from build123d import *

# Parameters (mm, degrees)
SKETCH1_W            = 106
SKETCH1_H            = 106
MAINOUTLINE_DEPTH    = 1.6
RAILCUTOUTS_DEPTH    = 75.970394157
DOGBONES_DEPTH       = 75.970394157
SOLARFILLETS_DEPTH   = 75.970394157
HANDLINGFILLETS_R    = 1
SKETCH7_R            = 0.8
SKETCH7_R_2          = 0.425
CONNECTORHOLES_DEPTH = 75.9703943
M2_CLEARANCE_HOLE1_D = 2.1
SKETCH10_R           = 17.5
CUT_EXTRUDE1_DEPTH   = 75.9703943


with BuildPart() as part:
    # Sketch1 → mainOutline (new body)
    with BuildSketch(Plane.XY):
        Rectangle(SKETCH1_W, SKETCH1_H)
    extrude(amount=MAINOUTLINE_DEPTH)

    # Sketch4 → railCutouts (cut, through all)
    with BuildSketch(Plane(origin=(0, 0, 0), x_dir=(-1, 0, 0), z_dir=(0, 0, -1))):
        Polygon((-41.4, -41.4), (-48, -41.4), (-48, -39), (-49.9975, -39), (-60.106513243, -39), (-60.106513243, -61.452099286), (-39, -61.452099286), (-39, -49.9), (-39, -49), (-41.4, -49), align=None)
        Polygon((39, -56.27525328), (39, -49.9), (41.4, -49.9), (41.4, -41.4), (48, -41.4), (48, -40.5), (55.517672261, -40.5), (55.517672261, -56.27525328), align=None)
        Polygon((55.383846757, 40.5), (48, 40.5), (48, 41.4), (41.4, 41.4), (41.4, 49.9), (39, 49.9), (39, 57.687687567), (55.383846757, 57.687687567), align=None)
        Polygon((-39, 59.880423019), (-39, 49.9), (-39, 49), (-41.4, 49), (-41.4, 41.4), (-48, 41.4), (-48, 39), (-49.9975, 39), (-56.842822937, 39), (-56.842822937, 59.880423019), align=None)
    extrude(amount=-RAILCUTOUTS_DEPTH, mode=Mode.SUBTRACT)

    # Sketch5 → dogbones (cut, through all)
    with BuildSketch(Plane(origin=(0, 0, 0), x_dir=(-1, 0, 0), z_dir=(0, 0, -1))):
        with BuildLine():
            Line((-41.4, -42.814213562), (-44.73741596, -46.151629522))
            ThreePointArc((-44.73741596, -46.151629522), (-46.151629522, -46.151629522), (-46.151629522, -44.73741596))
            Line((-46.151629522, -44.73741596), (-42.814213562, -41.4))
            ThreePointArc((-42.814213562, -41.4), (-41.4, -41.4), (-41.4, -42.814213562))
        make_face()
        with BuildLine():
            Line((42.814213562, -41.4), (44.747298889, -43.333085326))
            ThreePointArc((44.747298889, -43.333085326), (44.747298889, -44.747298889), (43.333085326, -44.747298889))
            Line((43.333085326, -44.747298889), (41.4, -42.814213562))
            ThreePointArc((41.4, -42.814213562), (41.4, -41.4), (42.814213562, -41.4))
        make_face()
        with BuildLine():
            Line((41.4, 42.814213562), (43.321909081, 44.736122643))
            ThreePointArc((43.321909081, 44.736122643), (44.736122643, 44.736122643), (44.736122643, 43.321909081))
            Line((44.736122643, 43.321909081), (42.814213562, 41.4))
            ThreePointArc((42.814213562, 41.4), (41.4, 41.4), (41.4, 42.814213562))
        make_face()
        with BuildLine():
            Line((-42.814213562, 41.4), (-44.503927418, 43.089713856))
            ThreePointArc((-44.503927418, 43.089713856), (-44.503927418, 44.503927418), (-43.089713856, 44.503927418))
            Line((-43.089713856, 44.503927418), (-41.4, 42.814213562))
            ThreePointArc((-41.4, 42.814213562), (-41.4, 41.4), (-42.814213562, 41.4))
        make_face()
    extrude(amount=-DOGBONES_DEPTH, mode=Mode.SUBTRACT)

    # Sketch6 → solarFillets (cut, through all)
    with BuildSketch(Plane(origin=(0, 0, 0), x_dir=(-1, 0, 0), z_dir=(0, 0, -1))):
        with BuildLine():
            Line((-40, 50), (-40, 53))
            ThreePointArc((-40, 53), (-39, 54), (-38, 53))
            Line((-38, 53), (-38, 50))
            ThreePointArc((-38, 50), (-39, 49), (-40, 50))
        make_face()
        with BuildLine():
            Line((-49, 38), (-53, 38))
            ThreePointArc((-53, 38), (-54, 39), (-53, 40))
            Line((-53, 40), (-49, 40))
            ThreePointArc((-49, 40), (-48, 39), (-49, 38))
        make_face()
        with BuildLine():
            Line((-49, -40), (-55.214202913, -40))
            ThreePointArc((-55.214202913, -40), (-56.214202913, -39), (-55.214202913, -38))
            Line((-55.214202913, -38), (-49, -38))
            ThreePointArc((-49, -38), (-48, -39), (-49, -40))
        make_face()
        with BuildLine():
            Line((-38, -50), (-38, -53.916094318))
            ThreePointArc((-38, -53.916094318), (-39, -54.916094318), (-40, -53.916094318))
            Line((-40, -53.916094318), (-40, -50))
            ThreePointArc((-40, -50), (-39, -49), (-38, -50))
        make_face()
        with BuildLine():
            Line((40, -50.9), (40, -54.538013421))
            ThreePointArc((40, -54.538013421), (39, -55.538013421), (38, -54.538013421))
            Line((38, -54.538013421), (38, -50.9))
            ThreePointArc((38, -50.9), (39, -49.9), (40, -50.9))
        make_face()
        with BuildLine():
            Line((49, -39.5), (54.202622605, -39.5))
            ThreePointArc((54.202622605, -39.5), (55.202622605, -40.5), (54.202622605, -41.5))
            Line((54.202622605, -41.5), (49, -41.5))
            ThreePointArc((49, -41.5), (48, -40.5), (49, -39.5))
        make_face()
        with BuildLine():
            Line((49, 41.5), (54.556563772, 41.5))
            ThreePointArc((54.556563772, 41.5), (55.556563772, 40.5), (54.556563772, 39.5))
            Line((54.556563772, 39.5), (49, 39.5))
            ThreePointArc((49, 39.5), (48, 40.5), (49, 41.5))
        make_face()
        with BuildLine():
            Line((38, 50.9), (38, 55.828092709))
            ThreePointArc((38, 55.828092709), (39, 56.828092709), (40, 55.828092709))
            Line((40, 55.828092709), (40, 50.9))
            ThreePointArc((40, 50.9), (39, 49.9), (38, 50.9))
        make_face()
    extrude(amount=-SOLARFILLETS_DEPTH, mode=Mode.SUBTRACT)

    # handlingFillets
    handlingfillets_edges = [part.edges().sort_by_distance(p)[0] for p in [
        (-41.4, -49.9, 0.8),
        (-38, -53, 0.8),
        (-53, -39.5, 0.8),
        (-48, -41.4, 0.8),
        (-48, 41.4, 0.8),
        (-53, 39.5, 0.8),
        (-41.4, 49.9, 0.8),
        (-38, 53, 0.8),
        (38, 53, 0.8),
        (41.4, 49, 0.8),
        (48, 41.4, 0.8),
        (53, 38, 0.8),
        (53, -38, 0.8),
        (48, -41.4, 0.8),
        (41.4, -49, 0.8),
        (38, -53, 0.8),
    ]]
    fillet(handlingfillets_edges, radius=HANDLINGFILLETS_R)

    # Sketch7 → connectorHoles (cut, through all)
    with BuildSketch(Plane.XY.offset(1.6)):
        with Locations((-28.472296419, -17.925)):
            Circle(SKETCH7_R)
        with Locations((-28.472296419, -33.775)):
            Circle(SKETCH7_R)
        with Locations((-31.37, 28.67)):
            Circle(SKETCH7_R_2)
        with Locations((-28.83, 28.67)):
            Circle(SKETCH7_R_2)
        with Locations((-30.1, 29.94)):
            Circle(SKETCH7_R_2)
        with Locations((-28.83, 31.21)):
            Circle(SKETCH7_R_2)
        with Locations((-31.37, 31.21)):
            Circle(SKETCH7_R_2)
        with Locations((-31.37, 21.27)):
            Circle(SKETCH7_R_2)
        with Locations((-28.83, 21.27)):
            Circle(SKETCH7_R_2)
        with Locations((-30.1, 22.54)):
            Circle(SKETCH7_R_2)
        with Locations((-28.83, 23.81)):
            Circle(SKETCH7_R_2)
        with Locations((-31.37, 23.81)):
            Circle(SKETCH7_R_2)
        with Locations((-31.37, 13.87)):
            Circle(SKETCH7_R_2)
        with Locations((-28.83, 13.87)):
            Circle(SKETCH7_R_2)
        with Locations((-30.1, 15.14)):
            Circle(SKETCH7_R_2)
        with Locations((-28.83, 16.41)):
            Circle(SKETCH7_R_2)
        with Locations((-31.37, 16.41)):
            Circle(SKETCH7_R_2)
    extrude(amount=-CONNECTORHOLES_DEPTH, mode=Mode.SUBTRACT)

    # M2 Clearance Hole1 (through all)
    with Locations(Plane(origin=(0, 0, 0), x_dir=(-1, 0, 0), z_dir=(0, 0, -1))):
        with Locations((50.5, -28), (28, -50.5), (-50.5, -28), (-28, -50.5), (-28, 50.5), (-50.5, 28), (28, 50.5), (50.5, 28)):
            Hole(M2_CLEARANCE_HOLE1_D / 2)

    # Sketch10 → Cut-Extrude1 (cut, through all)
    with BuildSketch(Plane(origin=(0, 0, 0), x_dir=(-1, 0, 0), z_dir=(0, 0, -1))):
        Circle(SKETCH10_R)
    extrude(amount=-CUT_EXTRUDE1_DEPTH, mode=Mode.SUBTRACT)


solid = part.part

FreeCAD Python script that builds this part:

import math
import FreeCAD as App
import Part
import Sketcher

V = App.Vector


def edges_at(feature, points):
    """Names of the edges that pass closest to the given points."""
    edges = feature.Shape.Edges
    near = lambda p: min(range(len(edges)), key=lambda i: edges[i].distToShape(Part.Vertex(*p))[0])
    return sorted({f"Edge{near(p) + 1}" for p in points})


def add_polygon(sketch, points):
    """Adds a closed chain of lines whose ends are joined by coincident constraints."""
    first, n = sketch.GeometryCount, len(points)
    for a, b in zip(points, points[1:] + points[:1]):
        sketch.addGeometry(Part.LineSegment(App.Vector(*a, 0), App.Vector(*b, 0)), False)
    for i in range(n):
        sketch.addConstraint(Sketcher.Constraint("Coincident", first + i, 2, first + (i + 1) % n, 1))

doc = App.newDocument("Part")
body = doc.addObject("PartDesign::Body", "Body")

# Sketch on XY plane
sketch1 = body.newObject("Sketcher::SketchObject", "Sketch")
sketch1.AttachmentSupport = (doc.getObject("XY_Plane"), [""])
sketch1.MapMode = "FlatFace"
add_polygon(sketch1, [(-53, 53), (-53, -53), (53, -53), (53, 53)])  # lines 0-3
sketch1.addConstraint([
    Sketcher.Constraint("Vertical", 0),
    Sketcher.Constraint("Horizontal", 1),
    Sketcher.Constraint("Vertical", 2),
    Sketcher.Constraint("Horizontal", 3),
    Sketcher.Constraint("Symmetric", 0, 2, 2, 2, -1, 1),
    Sketcher.Constraint("Equal", 3, 0),
    Sketcher.Constraint("DistanceX", 1, 1, 1, 2, 106.0),
])
pad1 = body.newObject("PartDesign::Pad", "Pad")
pad1.Profile = sketch1
pad1.Length = 1.6

# Sketch on XY plane
sketch2 = body.newObject("Sketcher::SketchObject", "Sketch001")
sketch2.AttachmentSupport = (doc.getObject("XY_Plane"), [""])
sketch2.MapMode = "FlatFace"
add_polygon(sketch2, [(41.4, -41.4), (48, -41.4), (48, -39), (60.106513, -39), (60.106513, -61.452099), (39, -61.452099), (39, -49), (41.4, -49)])  # lines 0-7
add_polygon(sketch2, [(-39, -49.9), (-39, -56.275253), (-55.517672, -56.275253), (-55.517672, -40.5), (-48, -40.5), (-48, -41.4), (-41.4, -41.4), (-41.4, -49.9)])  # lines 8-15
add_polygon(sketch2, [(-48, 40.5), (-55.383847, 40.5), (-55.383847, 57.687688), (-39, 57.687688), (-39, 49.9), (-41.4, 49.9), (-41.4, 41.4), (-48, 41.4)])  # lines 16-23
add_polygon(sketch2, [(39, 49), (39, 59.880423), (56.842823, 59.880423), (56.842823, 39), (48, 39), (48, 41.4), (41.4, 41.4), (41.4, 49)])  # lines 24-31
sketch2.addConstraint([
    Sketcher.Constraint("Horizontal", 0),
    Sketcher.Constraint("Vertical", 1),
    Sketcher.Constraint("Horizontal", 2),
    Sketcher.Constraint("Vertical", 3),
    Sketcher.Constraint("Horizontal", 4),
    Sketcher.Constraint("Vertical", 5),
    Sketcher.Constraint("Horizontal", 6),
    Sketcher.Constraint("Vertical", 7),
    Sketcher.Constraint("Vertical", 8),
    Sketcher.Constraint("Horizontal", 9),
    Sketcher.Constraint("Vertical", 10),
    Sketcher.Constraint("Horizontal", 11),
    Sketcher.Constraint("Vertical", 12),
    Sketcher.Constraint("Horizontal", 13),
    Sketcher.Constraint("Vertical", 14),
    Sketcher.Constraint("Horizontal", 15),
    Sketcher.Constraint("Horizontal", 16),
    Sketcher.Constraint("Vertical", 17),
    Sketcher.Constraint("Horizontal", 18),
    Sketcher.Constraint("Vertical", 19),
    Sketcher.Constraint("Horizontal", 20),
    Sketcher.Constraint("Vertical", 21),
    Sketcher.Constraint("Horizontal", 22),
    Sketcher.Constraint("Vertical", 23),
    Sketcher.Constraint("Vertical", 24),
    Sketcher.Constraint("Horizontal", 25),
    Sketcher.Constraint("Vertical", 26),
    Sketcher.Constraint("Horizontal", 27),
    Sketcher.Constraint("Vertical", 28),
    Sketcher.Constraint("Horizontal", 29),
    Sketcher.Constraint("Vertical", 30),
    Sketcher.Constraint("Horizontal", 31),
    Sketcher.Constraint("Symmetric", 7, 2, 21, 2, -1, 1),
    Sketcher.Constraint("Symmetric", 12, 2, 28, 2, -1, 1),
    Sketcher.Constraint("Symmetric", 0, 2, 12, 2, -2),
    Sketcher.Constraint("Symmetric", 15, 2, 19, 2, -1),
    Sketcher.Constraint("Symmetric", 11, 2, 23, 2, -1),
    Sketcher.Constraint("Symmetric", 6, 2, 30, 2, -1),
    Sketcher.Constraint("Vertical", 14, 2, 20, 2),
    Sketcher.Constraint("Vertical", 5, 2, 24, 2),
    Sketcher.Constraint("Equal", 6, 15),
    Sketcher.Constraint("Equal", 31, 1),
    Sketcher.Constraint("Equal", 1, 28),
    Sketcher.Constraint("DistanceX", 0, 1, 0, 2, 6.6),
    Sketcher.Constraint("DistanceX", 6, 1, 6, 2, 2.4),
    Sketcher.Constraint("DistanceY", 7, 1, 7, 2, 7.6),
    Sketcher.Constraint("DistanceY", 12, 2, 12, 1, 0.9),
    Sketcher.Constraint("DistanceY", 14, 2, 14, 1, 8.5),
    Sketcher.Constraint("DistanceX", -1, 1, 0, 2, 48.0),
    Sketcher.Constraint("DistanceY", 1, 2, -1, 1, 39.0),
    Sketcher.Constraint("DistanceY", 3, 2, 3, 1, 22.452099),
    Sketcher.Constraint("DistanceX", 2, 1, 2, 2, 12.106513),
    Sketcher.Constraint("DistanceX", 9, 2, 9, 1, 16.517672),
    Sketcher.Constraint("DistanceX", 16, 2, 16, 1, 7.383847),
    Sketcher.Constraint("DistanceX", 25, 1, 25, 2, 17.842823),
    Sketcher.Constraint("DistanceY", 8, 2, 8, 1, 6.375253),
    Sketcher.Constraint("DistanceY", 17, 1, 17, 2, 17.187688),
    Sketcher.Constraint("DistanceY", 24, 1, 24, 2, 10.880423),
])
pocket1 = body.newObject("PartDesign::Pocket", "Pocket")
pocket1.Profile = sketch2
pocket1.Type = "ThroughAll"
pocket1.Reversed = True

# Sketch on XY plane
sketch3 = body.newObject("Sketcher::SketchObject", "Sketch002")
sketch3.AttachmentSupport = (doc.getObject("XY_Plane"), [""])
sketch3.MapMode = "FlatFace"
sketch3.addGeometry([
    Part.LineSegment(V(44.737416, -46.15163, 0), V(41.4, -42.814214, 0)),  # 0
    Part.ArcOfCircle(Part.Circle(V(42.107107, -42.107107, 0), V(0, 0, 1), 1), math.radians(45), math.radians(225)),  # 1
    Part.LineSegment(V(42.814214, -41.4, 0), V(46.15163, -44.737416, 0)),  # 2
    Part.ArcOfCircle(Part.Circle(V(45.444523, -45.444523, 0), V(0, 0, 1), 1), math.radians(-135), math.radians(45)),  # 3
    Part.LineSegment(V(-44.747299, -43.333085, 0), V(-42.814214, -41.4, 0)),  # 4
    Part.ArcOfCircle(Part.Circle(V(-42.107107, -42.107107, 0), V(0, 0, 1), 1), math.radians(-45), math.radians(135)),  # 5
    Part.LineSegment(V(-41.4, -42.814214, 0), V(-43.333085, -44.747299, 0)),  # 6
    Part.ArcOfCircle(Part.Circle(V(-44.040192, -44.040192, 0), V(0, 0, 1), 1), math.radians(135), math.radians(315)),  # 7
    Part.LineSegment(V(-43.321909, 44.736123, 0), V(-41.4, 42.814214, 0)),  # 8
    Part.ArcOfCircle(Part.Circle(V(-42.107107, 42.107107, 0), V(0, 0, 1), 1), math.radians(-135), math.radians(45)),  # 9
    Part.LineSegment(V(-42.814214, 41.4, 0), V(-44.736123, 43.321909, 0)),  # 10
    Part.ArcOfCircle(Part.Circle(V(-44.029016, 44.029016, 0), V(0, 0, 1), 1), math.radians(45), math.radians(225)),  # 11
    Part.LineSegment(V(44.503927, 43.089714, 0), V(42.814214, 41.4, 0)),  # 12
    Part.ArcOfCircle(Part.Circle(V(42.107107, 42.107107, 0), V(0, 0, 1), 1), math.radians(135), math.radians(315)),  # 13
    Part.LineSegment(V(41.4, 42.814214, 0), V(43.089714, 44.503927, 0)),  # 14
    Part.ArcOfCircle(Part.Circle(V(43.796821, 43.796821, 0), V(0, 0, 1), 1), math.radians(-45), math.radians(135)),  # 15
], False)
sketch3.addConstraint([
    Sketcher.Constraint("Tangent", 0, 2, 1, 2),
    Sketcher.Constraint("Tangent", 1, 1, 2, 1),
    Sketcher.Constraint("Tangent", 2, 2, 3, 2),
    Sketcher.Constraint("Tangent", 3, 1, 0, 1),
    Sketcher.Constraint("Tangent", 4, 2, 5, 2),
    Sketcher.Constraint("Tangent", 5, 1, 6, 1),
    Sketcher.Constraint("Tangent", 6, 2, 7, 2),
    Sketcher.Constraint("Tangent", 7, 1, 4, 1),
    Sketcher.Constraint("Tangent", 8, 2, 9, 2),
    Sketcher.Constraint("Tangent", 9, 1, 10, 1),
    Sketcher.Constraint("Tangent", 10, 2, 11, 2),
    Sketcher.Constraint("Tangent", 11, 1, 8, 1),
    Sketcher.Constraint("Tangent", 12, 2, 13, 2),
    Sketcher.Constraint("Tangent", 13, 1, 14, 1),
    Sketcher.Constraint("Tangent", 14, 2, 15, 2),
    Sketcher.Constraint("Tangent", 15, 1, 12, 1),
    Sketcher.Constraint("Equal", 1, 3),
    Sketcher.Constraint("Equal", 3, 5),
    Sketcher.Constraint("Equal", 5, 7),
    Sketcher.Constraint("Equal", 7, 9),
    Sketcher.Constraint("Equal", 9, 11),
    Sketcher.Constraint("Equal", 11, 13),
    Sketcher.Constraint("Equal", 13, 15),
    Sketcher.Constraint("Symmetric", 1, 3, 9, 3, -1, 1),
    Sketcher.Constraint("Symmetric", 5, 3, 13, 3, -1, 1),
    Sketcher.Constraint("Symmetric", 1, 3, 5, 3, -2),
    Sketcher.Constraint("Perpendicular", 2, 4),
    Sketcher.Constraint("Perpendicular", 6, 8),
    Sketcher.Constraint("Perpendicular", 10, 12),
    Sketcher.Constraint("Horizontal", 1, 1, 4, 2),
    Sketcher.Constraint("Radius", 1, 1.0),
    Sketcher.Constraint("DistanceX", -1, 1, 0, 2, 41.4),
    Sketcher.Constraint("DistanceY", 1, 1, -1, 1, 41.4),
    Sketcher.Constraint("DistanceY", 6, 2, -1, 1, 44.747299),
    Sketcher.Constraint("DistanceX", 12, 2, 14, 2, 0.2755),
    Sketcher.Constraint("Distance", 0, 4.719819),
    Sketcher.Constraint("Distance", 8, 2.71799),
])
pocket2 = body.newObject("PartDesign::Pocket", "Pocket001")
pocket2.Profile = sketch3
pocket2.Type = "ThroughAll"
pocket2.Reversed = True

# Sketch on XY plane
sketch4 = body.newObject("Sketcher::SketchObject", "Sketch003")
sketch4.AttachmentSupport = (doc.getObject("XY_Plane"), [""])
sketch4.MapMode = "FlatFace"
sketch4.addGeometry([
    Part.LineSegment(V(40, 53, 0), V(40, 50, 0)),  # 0
    Part.ArcOfCircle(Part.Circle(V(39, 50, 0), V(0, 0, 1), 1), math.radians(180), math.radians(360)),  # 1
    Part.LineSegment(V(38, 50, 0), V(38, 53, 0)),  # 2
    Part.ArcOfCircle(Part.Circle(V(39, 53, 0), V(0, 0, 1), 1), math.radians(0), math.radians(180)),  # 3
    Part.LineSegment(V(53, 38, 0), V(49, 38, 0)),  # 4
    Part.ArcOfCircle(Part.Circle(V(49, 39, 0), V(0, 0, 1), 1), math.radians(90), math.radians(270)),  # 5
    Part.LineSegment(V(49, 40, 0), V(53, 40, 0)),  # 6
    Part.ArcOfCircle(Part.Circle(V(53, 39, 0), V(0, 0, 1), 1), math.radians(-90), math.radians(90)),  # 7
    Part.LineSegment(V(55.214203, -40, 0), V(49, -40, 0)),  # 8
    Part.ArcOfCircle(Part.Circle(V(49, -39, 0), V(0, 0, 1), 1), math.radians(90), math.radians(270)),  # 9
    Part.LineSegment(V(49, -38, 0), V(55.214203, -38, 0)),  # 10
    Part.ArcOfCircle(Part.Circle(V(55.214203, -39, 0), V(0, 0, 1), 1), math.radians(-90), math.radians(90)),  # 11
    Part.LineSegment(V(38, -53.916094, 0), V(38, -50, 0)),  # 12
    Part.ArcOfCircle(Part.Circle(V(39, -50, 0), V(0, 0, 1), 1), math.radians(0), math.radians(180)),  # 13
    Part.LineSegment(V(40, -50, 0), V(40, -53.916094, 0)),  # 14
    Part.ArcOfCircle(Part.Circle(V(39, -53.916094, 0), V(0, 0, 1), 1), math.radians(180), math.radians(360)),  # 15
    Part.LineSegment(V(-40, -54.538013, 0), V(-40, -50.9, 0)),  # 16
    Part.ArcOfCircle(Part.Circle(V(-39, -50.9, 0), V(0, 0, 1), 1), math.radians(0), math.radians(180)),  # 17
    Part.LineSegment(V(-38, -50.9, 0), V(-38, -54.538013, 0)),  # 18
    Part.ArcOfCircle(Part.Circle(V(-39, -54.538013, 0), V(0, 0, 1), 1), math.radians(180), math.radians(360)),  # 19
    Part.LineSegment(V(-54.202623, -39.5, 0), V(-49, -39.5, 0)),  # 20
    Part.ArcOfCircle(Part.Circle(V(-49, -40.5, 0), V(0, 0, 1), 1), math.radians(-90), math.radians(90)),  # 21
    Part.LineSegment(V(-49, -41.5, 0), V(-54.202623, -41.5, 0)),  # 22
    Part.ArcOfCircle(Part.Circle(V(-54.202623, -40.5, 0), V(0, 0, 1), 1), math.radians(90), math.radians(270)),  # 23
    Part.LineSegment(V(-54.556564, 41.5, 0), V(-49, 41.5, 0)),  # 24
    Part.ArcOfCircle(Part.Circle(V(-49, 40.5, 0), V(0, 0, 1), 1), math.radians(-90), math.radians(90)),  # 25
    Part.LineSegment(V(-49, 39.5, 0), V(-54.556564, 39.5, 0)),  # 26
    Part.ArcOfCircle(Part.Circle(V(-54.556564, 40.5, 0), V(0, 0, 1), 1), math.radians(90), math.radians(270)),  # 27
    Part.LineSegment(V(-38, 55.828093, 0), V(-38, 50.9, 0)),  # 28
    Part.ArcOfCircle(Part.Circle(V(-39, 50.9, 0), V(0, 0, 1), 1), math.radians(180), math.radians(360)),  # 29
    Part.LineSegment(V(-40, 50.9, 0), V(-40, 55.828093, 0)),  # 30
    Part.ArcOfCircle(Part.Circle(V(-39, 55.828093, 0), V(0, 0, 1), 1), math.radians(0), math.radians(180)),  # 31
], False)
sketch4.addConstraint([
    Sketcher.Constraint("Tangent", 0, 2, 1, 2),
    Sketcher.Constraint("Tangent", 1, 1, 2, 1),
    Sketcher.Constraint("Tangent", 2, 2, 3, 2),
    Sketcher.Constraint("Tangent", 3, 1, 0, 1),
    Sketcher.Constraint("Tangent", 4, 2, 5, 2),
    Sketcher.Constraint("Tangent", 5, 1, 6, 1),
    Sketcher.Constraint("Tangent", 6, 2, 7, 2),
    Sketcher.Constraint("Tangent", 7, 1, 4, 1),
    Sketcher.Constraint("Tangent", 8, 2, 9, 2),
    Sketcher.Constraint("Tangent", 9, 1, 10, 1),
    Sketcher.Constraint("Tangent", 10, 2, 11, 2),
    Sketcher.Constraint("Tangent", 11, 1, 8, 1),
    Sketcher.Constraint("Tangent", 12, 2, 13, 2),
    Sketcher.Constraint("Tangent", 13, 1, 14, 1),
    Sketcher.Constraint("Tangent", 14, 2, 15, 2),
    Sketcher.Constraint("Tangent", 15, 1, 12, 1),
    Sketcher.Constraint("Tangent", 16, 2, 17, 2),
    Sketcher.Constraint("Tangent", 17, 1, 18, 1),
    Sketcher.Constraint("Tangent", 18, 2, 19, 2),
    Sketcher.Constraint("Tangent", 19, 1, 16, 1),
    Sketcher.Constraint("Tangent", 20, 2, 21, 2),
    Sketcher.Constraint("Tangent", 21, 1, 22, 1),
    Sketcher.Constraint("Tangent", 22, 2, 23, 2),
    Sketcher.Constraint("Tangent", 23, 1, 20, 1),
    Sketcher.Constraint("Tangent", 24, 2, 25, 2),
    Sketcher.Constraint("Tangent", 25, 1, 26, 1),
    Sketcher.Constraint("Tangent", 26, 2, 27, 2),
    Sketcher.Constraint("Tangent", 27, 1, 24, 1),
    Sketcher.Constraint("Tangent", 28, 2, 29, 2),
    Sketcher.Constraint("Tangent", 29, 1, 30, 1),
    Sketcher.Constraint("Tangent", 30, 2, 31, 2),
    Sketcher.Constraint("Tangent", 31, 1, 28, 1),
    Sketcher.Constraint("Vertical", 0),
    Sketcher.Constraint("Vertical", 2),
    Sketcher.Constraint("Horizontal", 4),
    Sketcher.Constraint("Horizontal", 6),
    Sketcher.Constraint("Horizontal", 8),
    Sketcher.Constraint("Horizontal", 10),
    Sketcher.Constraint("Vertical", 12),
    Sketcher.Constraint("Vertical", 14),
    Sketcher.Constraint("Vertical", 16),
    Sketcher.Constraint("Vertical", 18),
    Sketcher.Constraint("Horizontal", 20),
    Sketcher.Constraint("Horizontal", 22),
    Sketcher.Constraint("Horizontal", 24),
    Sketcher.Constraint("Horizontal", 26),
    Sketcher.Constraint("Vertical", 28),
    Sketcher.Constraint("Vertical", 30),
    Sketcher.Constraint("Equal", 3, 5),
    Sketcher.Constraint("Equal", 7, 9),
    Sketcher.Constraint("Equal", 11, 13),
    Sketcher.Constraint("Equal", 15, 17),
    Sketcher.Constraint("Equal", 19, 21),
    Sketcher.Constraint("Equal", 23, 25),
    Sketcher.Constraint("Equal", 27, 29),
    Sketcher.Constraint("Symmetric", 5, 3, 9, 3, -1),
    Sketcher.Constraint("Symmetric", 1, 3, 13, 3, -1),
    Sketcher.Constraint("Symmetric", 21, 3, 25, 3, -1),
    Sketcher.Constraint("Symmetric", 17, 3, 29, 3, -1),
    Sketcher.Constraint("Radius", 1, 1.0),
    Sketcher.Constraint("DistanceX", 4, 2, 4, 1, 4.0),
    Sketcher.Constraint("DistanceY", 0, 2, 0, 1, 3.0),
    Sketcher.Constraint("DistanceX", -1, 1, 1, 3, 39.0),
    Sketcher.Constraint("DistanceY", -1, 1, 1, 3, 50.0),
    Sketcher.Constraint("DistanceX", -1, 1, 5, 3, 49.0),
    Sketcher.Constraint("DistanceY", -1, 1, 5, 3, 39.0),
    Sketcher.Constraint("DistanceX", 17, 3, -1, 1, 39.0),
    Sketcher.Constraint("DistanceX", 21, 3, -1, 1, 49.0),
    Sketcher.Constraint("DistanceY", 21, 3, 25, 3, 81.0),
    Sketcher.Constraint("DistanceY", 17, 3, -1, 1, 50.9),
    Sketcher.Constraint("DistanceX", 8, 2, 8, 1, 6.214203),
    Sketcher.Constraint("DistanceX", 20, 1, 20, 2, 5.202623),
    Sketcher.Constraint("DistanceX", 24, 1, 24, 2, 5.556564),
    Sketcher.Constraint("DistanceY", 12, 1, 12, 2, 3.916094),
    Sketcher.Constraint("DistanceY", 16, 1, 16, 2, 3.638013),
    Sketcher.Constraint("DistanceY", 28, 2, 28, 1, 4.928093),
])
pocket3 = body.newObject("PartDesign::Pocket", "Pocket002")
pocket3.Profile = sketch4
pocket3.Type = "ThroughAll"
pocket3.Reversed = True
doc.recompute()

fillet = body.newObject("PartDesign::Fillet", "Fillet")
fillet.Base = (pocket3, edges_at(pocket3, [
    (-41.4, -49.9, 0.8),
    (-38, -53, 0.8),
    (-53, -39.5, 0.8),
    (-48, -41.4, 0.8),
    (-48, 41.4, 0.8),
    (-53, 39.5, 0.8),
    (-41.4, 49.9, 0.8),
    (-38, 53, 0.8),
    (38, 53, 0.8),
    (41.4, 49, 0.8),
    (48, 41.4, 0.8),
    (53, 38, 0.8),
    (53, -38, 0.8),
    (48, -41.4, 0.8),
    (41.4, -49, 0.8),
    (38, -53, 0.8),
]))
fillet.Radius = 1

# Sketch on XY plane
sketch5 = body.newObject("Sketcher::SketchObject", "Sketch004")
sketch5.AttachmentSupport = (doc.getObject("XY_Plane"), [""])
sketch5.MapMode = "FlatFace"
sketch5.AttachmentOffset = App.Placement(V(0, 0, 1.6), App.Rotation())
sketch5.addGeometry([
    Part.Circle(V(-28.472296, -17.925, 0), V(0, 0, 1), 0.8),  # 0
    Part.Circle(V(-28.472296, -33.775, 0), V(0, 0, 1), 0.8),  # 1
    Part.Circle(V(-31.37, 28.67, 0), V(0, 0, 1), 0.425),  # 2
    Part.Circle(V(-28.83, 28.67, 0), V(0, 0, 1), 0.425),  # 3
    Part.Circle(V(-30.1, 29.94, 0), V(0, 0, 1), 0.425),  # 4
    Part.Circle(V(-28.83, 31.21, 0), V(0, 0, 1), 0.425),  # 5
    Part.Circle(V(-31.37, 31.21, 0), V(0, 0, 1), 0.425),  # 6
    Part.Circle(V(-31.37, 21.27, 0), V(0, 0, 1), 0.425),  # 7
    Part.Circle(V(-28.83, 21.27, 0), V(0, 0, 1), 0.425),  # 8
    Part.Circle(V(-30.1, 22.54, 0), V(0, 0, 1), 0.425),  # 9
    Part.Circle(V(-28.83, 23.81, 0), V(0, 0, 1), 0.425),  # 10
    Part.Circle(V(-31.37, 23.81, 0), V(0, 0, 1), 0.425),  # 11
    Part.Circle(V(-31.37, 13.87, 0), V(0, 0, 1), 0.425),  # 12
    Part.Circle(V(-28.83, 13.87, 0), V(0, 0, 1), 0.425),  # 13
    Part.Circle(V(-30.1, 15.14, 0), V(0, 0, 1), 0.425),  # 14
    Part.Circle(V(-28.83, 16.41, 0), V(0, 0, 1), 0.425),  # 15
    Part.Circle(V(-31.37, 16.41, 0), V(0, 0, 1), 0.425),  # 16
], False)
sketch5.addConstraint([
    Sketcher.Constraint("Equal", 0, 1),
    Sketcher.Constraint("Equal", 2, 3),
    Sketcher.Constraint("Equal", 3, 4),
    Sketcher.Constraint("Equal", 4, 5),
    Sketcher.Constraint("Equal", 5, 6),
    Sketcher.Constraint("Equal", 6, 7),
    Sketcher.Constraint("Equal", 7, 8),
    Sketcher.Constraint("Equal", 8, 9),
    Sketcher.Constraint("Equal", 9, 10),
    Sketcher.Constraint("Equal", 10, 11),
    Sketcher.Constraint("Equal", 11, 12),
    Sketcher.Constraint("Equal", 12, 13),
    Sketcher.Constraint("Equal", 13, 14),
    Sketcher.Constraint("Equal", 14, 15),
    Sketcher.Constraint("Equal", 15, 16),
    Sketcher.Constraint("Horizontal", 2, 3, 3, 3),
    Sketcher.Constraint("Horizontal", 5, 3, 6, 3),
    Sketcher.Constraint("Horizontal", 7, 3, 8, 3),
    Sketcher.Constraint("Horizontal", 10, 3, 11, 3),
    Sketcher.Constraint("Horizontal", 12, 3, 13, 3),
    Sketcher.Constraint("Horizontal", 15, 3, 16, 3),
    Sketcher.Constraint("Vertical", 0, 3, 1, 3),
    Sketcher.Constraint("Vertical", 3, 3, 5, 3),
    Sketcher.Constraint("Vertical", 2, 3, 6, 3),
    Sketcher.Constraint("Vertical", 6, 3, 7, 3),
    Sketcher.Constraint("Vertical", 5, 3, 8, 3),
    Sketcher.Constraint("Vertical", 4, 3, 9, 3),
    Sketcher.Constraint("Vertical", 8, 3, 10, 3),
    Sketcher.Constraint("Vertical", 7, 3, 11, 3),
    Sketcher.Constraint("Vertical", 11, 3, 12, 3),
    Sketcher.Constraint("Vertical", 10, 3, 13, 3),
    Sketcher.Constraint("Vertical", 9, 3, 14, 3),
    Sketcher.Constraint("Vertical", 13, 3, 15, 3),
    Sketcher.Constraint("Vertical", 12, 3, 16, 3),
    Sketcher.Constraint("Diameter", 0, 1.6),
    Sketcher.Constraint("Diameter", 2, 0.85),
    Sketcher.Constraint("DistanceX", 4, 3, -1, 1, 30.1),
    Sketcher.Constraint("DistanceY", 7, 3, 2, 3, 7.4),
    Sketcher.Constraint("DistanceY", 9, 3, 4, 3, 7.4),
    Sketcher.Constraint("DistanceY", 12, 3, 7, 3, 7.4),
    Sketcher.Constraint("DistanceY", 14, 3, 9, 3, 7.4),
    Sketcher.Constraint("DistanceX", 2, 3, -1, 1, 31.37),
    Sketcher.Constraint("DistanceY", -1, 1, 2, 3, 28.67),
    Sketcher.Constraint("DistanceX", 3, 3, -1, 1, 28.83),
    Sketcher.Constraint("DistanceY", -1, 1, 4, 3, 29.94),
    Sketcher.Constraint("DistanceY", -1, 1, 5, 3, 31.21),
    Sketcher.Constraint("DistanceY", -1, 1, 10, 3, 23.81),
    Sketcher.Constraint("DistanceY", -1, 1, 15, 3, 16.41),
    Sketcher.Constraint("DistanceY", 1, 3, 0, 3, 15.85),
    Sketcher.Constraint("DistanceY", 0, 3, -1, 1, 17.925),
    Sketcher.Constraint("DistanceX", 0, 3, -1, 1, 28.472296),
])
pocket4 = body.newObject("PartDesign::Pocket", "Pocket003")
pocket4.Profile = sketch5
pocket4.Type = "ThroughAll"

# Sketch on XY plane
sketch6 = body.newObject("Sketcher::SketchObject", "Sketch005")
sketch6.AttachmentSupport = (doc.getObject("XY_Plane"), [""])
sketch6.MapMode = "FlatFace"
sketch6.addGeometry([
    Part.Circle(V(-50.5, -28, 0), V(0, 0, 1), 1.05),  # 0
    Part.Circle(V(-28, -50.5, 0), V(0, 0, 1), 1.05),  # 1
    Part.Circle(V(50.5, -28, 0), V(0, 0, 1), 1.05),  # 2
    Part.Circle(V(28, -50.5, 0), V(0, 0, 1), 1.05),  # 3
    Part.Circle(V(28, 50.5, 0), V(0, 0, 1), 1.05),  # 4
    Part.Circle(V(50.5, 28, 0), V(0, 0, 1), 1.05),  # 5
    Part.Circle(V(-28, 50.5, 0), V(0, 0, 1), 1.05),  # 6
    Part.Circle(V(-50.5, 28, 0), V(0, 0, 1), 1.05),  # 7
], False)
sketch6.addConstraint([
    Sketcher.Constraint("Equal", 0, 1),
    Sketcher.Constraint("Equal", 1, 2),
    Sketcher.Constraint("Equal", 2, 3),
    Sketcher.Constraint("Equal", 3, 4),
    Sketcher.Constraint("Equal", 4, 5),
    Sketcher.Constraint("Equal", 5, 6),
    Sketcher.Constraint("Equal", 6, 7),
    Sketcher.Constraint("Symmetric", 1, 3, 4, 3, -1, 1),
    Sketcher.Constraint("Symmetric", 0, 3, 5, 3, -1, 1),
    Sketcher.Constraint("Symmetric", 3, 3, 6, 3, -1, 1),
    Sketcher.Constraint("Symmetric", 2, 3, 7, 3, -1, 1),
    Sketcher.Constraint("Symmetric", 0, 3, 2, 3, -2),
    Sketcher.Constraint("Symmetric", 1, 3, 3, 3, -2),
    Sketcher.Constraint("Diameter", 0, 2.1),
    Sketcher.Constraint("DistanceY", 0, 3, -1, 1, 28.0),
    Sketcher.Constraint("DistanceX", 1, 3, -1, 1, 28.0),
    Sketcher.Constraint("DistanceX", 0, 3, 2, 3, 101.0),
    Sketcher.Constraint("DistanceY", 3, 3, 4, 3, 101.0),
])
doc.recompute()
hole = body.newObject("PartDesign::Hole", "Hole")
hole.Profile = sketch6
hole.ThreadType = "None"
hole.Diameter = 2.1
hole.DepthType = "ThroughAll"
hole.Reversed = True

# Sketch on XY plane
sketch7 = body.newObject("Sketcher::SketchObject", "Sketch006")
sketch7.AttachmentSupport = (doc.getObject("XY_Plane"), [""])
sketch7.MapMode = "FlatFace"
sketch7.addGeometry(Part.Circle(V(0, 0, 0), V(0, 0, 1), 17.5), False)
sketch7.addConstraint([
    Sketcher.Constraint("Coincident", 0, 3, -1, 1),
    Sketcher.Constraint("Diameter", 0, 35.0),
])
pocket5 = body.newObject("PartDesign::Pocket", "Pocket004")
pocket5.Profile = sketch7
pocket5.Type = "ThroughAll"
pocket5.Reversed = True

doc.recompute()
